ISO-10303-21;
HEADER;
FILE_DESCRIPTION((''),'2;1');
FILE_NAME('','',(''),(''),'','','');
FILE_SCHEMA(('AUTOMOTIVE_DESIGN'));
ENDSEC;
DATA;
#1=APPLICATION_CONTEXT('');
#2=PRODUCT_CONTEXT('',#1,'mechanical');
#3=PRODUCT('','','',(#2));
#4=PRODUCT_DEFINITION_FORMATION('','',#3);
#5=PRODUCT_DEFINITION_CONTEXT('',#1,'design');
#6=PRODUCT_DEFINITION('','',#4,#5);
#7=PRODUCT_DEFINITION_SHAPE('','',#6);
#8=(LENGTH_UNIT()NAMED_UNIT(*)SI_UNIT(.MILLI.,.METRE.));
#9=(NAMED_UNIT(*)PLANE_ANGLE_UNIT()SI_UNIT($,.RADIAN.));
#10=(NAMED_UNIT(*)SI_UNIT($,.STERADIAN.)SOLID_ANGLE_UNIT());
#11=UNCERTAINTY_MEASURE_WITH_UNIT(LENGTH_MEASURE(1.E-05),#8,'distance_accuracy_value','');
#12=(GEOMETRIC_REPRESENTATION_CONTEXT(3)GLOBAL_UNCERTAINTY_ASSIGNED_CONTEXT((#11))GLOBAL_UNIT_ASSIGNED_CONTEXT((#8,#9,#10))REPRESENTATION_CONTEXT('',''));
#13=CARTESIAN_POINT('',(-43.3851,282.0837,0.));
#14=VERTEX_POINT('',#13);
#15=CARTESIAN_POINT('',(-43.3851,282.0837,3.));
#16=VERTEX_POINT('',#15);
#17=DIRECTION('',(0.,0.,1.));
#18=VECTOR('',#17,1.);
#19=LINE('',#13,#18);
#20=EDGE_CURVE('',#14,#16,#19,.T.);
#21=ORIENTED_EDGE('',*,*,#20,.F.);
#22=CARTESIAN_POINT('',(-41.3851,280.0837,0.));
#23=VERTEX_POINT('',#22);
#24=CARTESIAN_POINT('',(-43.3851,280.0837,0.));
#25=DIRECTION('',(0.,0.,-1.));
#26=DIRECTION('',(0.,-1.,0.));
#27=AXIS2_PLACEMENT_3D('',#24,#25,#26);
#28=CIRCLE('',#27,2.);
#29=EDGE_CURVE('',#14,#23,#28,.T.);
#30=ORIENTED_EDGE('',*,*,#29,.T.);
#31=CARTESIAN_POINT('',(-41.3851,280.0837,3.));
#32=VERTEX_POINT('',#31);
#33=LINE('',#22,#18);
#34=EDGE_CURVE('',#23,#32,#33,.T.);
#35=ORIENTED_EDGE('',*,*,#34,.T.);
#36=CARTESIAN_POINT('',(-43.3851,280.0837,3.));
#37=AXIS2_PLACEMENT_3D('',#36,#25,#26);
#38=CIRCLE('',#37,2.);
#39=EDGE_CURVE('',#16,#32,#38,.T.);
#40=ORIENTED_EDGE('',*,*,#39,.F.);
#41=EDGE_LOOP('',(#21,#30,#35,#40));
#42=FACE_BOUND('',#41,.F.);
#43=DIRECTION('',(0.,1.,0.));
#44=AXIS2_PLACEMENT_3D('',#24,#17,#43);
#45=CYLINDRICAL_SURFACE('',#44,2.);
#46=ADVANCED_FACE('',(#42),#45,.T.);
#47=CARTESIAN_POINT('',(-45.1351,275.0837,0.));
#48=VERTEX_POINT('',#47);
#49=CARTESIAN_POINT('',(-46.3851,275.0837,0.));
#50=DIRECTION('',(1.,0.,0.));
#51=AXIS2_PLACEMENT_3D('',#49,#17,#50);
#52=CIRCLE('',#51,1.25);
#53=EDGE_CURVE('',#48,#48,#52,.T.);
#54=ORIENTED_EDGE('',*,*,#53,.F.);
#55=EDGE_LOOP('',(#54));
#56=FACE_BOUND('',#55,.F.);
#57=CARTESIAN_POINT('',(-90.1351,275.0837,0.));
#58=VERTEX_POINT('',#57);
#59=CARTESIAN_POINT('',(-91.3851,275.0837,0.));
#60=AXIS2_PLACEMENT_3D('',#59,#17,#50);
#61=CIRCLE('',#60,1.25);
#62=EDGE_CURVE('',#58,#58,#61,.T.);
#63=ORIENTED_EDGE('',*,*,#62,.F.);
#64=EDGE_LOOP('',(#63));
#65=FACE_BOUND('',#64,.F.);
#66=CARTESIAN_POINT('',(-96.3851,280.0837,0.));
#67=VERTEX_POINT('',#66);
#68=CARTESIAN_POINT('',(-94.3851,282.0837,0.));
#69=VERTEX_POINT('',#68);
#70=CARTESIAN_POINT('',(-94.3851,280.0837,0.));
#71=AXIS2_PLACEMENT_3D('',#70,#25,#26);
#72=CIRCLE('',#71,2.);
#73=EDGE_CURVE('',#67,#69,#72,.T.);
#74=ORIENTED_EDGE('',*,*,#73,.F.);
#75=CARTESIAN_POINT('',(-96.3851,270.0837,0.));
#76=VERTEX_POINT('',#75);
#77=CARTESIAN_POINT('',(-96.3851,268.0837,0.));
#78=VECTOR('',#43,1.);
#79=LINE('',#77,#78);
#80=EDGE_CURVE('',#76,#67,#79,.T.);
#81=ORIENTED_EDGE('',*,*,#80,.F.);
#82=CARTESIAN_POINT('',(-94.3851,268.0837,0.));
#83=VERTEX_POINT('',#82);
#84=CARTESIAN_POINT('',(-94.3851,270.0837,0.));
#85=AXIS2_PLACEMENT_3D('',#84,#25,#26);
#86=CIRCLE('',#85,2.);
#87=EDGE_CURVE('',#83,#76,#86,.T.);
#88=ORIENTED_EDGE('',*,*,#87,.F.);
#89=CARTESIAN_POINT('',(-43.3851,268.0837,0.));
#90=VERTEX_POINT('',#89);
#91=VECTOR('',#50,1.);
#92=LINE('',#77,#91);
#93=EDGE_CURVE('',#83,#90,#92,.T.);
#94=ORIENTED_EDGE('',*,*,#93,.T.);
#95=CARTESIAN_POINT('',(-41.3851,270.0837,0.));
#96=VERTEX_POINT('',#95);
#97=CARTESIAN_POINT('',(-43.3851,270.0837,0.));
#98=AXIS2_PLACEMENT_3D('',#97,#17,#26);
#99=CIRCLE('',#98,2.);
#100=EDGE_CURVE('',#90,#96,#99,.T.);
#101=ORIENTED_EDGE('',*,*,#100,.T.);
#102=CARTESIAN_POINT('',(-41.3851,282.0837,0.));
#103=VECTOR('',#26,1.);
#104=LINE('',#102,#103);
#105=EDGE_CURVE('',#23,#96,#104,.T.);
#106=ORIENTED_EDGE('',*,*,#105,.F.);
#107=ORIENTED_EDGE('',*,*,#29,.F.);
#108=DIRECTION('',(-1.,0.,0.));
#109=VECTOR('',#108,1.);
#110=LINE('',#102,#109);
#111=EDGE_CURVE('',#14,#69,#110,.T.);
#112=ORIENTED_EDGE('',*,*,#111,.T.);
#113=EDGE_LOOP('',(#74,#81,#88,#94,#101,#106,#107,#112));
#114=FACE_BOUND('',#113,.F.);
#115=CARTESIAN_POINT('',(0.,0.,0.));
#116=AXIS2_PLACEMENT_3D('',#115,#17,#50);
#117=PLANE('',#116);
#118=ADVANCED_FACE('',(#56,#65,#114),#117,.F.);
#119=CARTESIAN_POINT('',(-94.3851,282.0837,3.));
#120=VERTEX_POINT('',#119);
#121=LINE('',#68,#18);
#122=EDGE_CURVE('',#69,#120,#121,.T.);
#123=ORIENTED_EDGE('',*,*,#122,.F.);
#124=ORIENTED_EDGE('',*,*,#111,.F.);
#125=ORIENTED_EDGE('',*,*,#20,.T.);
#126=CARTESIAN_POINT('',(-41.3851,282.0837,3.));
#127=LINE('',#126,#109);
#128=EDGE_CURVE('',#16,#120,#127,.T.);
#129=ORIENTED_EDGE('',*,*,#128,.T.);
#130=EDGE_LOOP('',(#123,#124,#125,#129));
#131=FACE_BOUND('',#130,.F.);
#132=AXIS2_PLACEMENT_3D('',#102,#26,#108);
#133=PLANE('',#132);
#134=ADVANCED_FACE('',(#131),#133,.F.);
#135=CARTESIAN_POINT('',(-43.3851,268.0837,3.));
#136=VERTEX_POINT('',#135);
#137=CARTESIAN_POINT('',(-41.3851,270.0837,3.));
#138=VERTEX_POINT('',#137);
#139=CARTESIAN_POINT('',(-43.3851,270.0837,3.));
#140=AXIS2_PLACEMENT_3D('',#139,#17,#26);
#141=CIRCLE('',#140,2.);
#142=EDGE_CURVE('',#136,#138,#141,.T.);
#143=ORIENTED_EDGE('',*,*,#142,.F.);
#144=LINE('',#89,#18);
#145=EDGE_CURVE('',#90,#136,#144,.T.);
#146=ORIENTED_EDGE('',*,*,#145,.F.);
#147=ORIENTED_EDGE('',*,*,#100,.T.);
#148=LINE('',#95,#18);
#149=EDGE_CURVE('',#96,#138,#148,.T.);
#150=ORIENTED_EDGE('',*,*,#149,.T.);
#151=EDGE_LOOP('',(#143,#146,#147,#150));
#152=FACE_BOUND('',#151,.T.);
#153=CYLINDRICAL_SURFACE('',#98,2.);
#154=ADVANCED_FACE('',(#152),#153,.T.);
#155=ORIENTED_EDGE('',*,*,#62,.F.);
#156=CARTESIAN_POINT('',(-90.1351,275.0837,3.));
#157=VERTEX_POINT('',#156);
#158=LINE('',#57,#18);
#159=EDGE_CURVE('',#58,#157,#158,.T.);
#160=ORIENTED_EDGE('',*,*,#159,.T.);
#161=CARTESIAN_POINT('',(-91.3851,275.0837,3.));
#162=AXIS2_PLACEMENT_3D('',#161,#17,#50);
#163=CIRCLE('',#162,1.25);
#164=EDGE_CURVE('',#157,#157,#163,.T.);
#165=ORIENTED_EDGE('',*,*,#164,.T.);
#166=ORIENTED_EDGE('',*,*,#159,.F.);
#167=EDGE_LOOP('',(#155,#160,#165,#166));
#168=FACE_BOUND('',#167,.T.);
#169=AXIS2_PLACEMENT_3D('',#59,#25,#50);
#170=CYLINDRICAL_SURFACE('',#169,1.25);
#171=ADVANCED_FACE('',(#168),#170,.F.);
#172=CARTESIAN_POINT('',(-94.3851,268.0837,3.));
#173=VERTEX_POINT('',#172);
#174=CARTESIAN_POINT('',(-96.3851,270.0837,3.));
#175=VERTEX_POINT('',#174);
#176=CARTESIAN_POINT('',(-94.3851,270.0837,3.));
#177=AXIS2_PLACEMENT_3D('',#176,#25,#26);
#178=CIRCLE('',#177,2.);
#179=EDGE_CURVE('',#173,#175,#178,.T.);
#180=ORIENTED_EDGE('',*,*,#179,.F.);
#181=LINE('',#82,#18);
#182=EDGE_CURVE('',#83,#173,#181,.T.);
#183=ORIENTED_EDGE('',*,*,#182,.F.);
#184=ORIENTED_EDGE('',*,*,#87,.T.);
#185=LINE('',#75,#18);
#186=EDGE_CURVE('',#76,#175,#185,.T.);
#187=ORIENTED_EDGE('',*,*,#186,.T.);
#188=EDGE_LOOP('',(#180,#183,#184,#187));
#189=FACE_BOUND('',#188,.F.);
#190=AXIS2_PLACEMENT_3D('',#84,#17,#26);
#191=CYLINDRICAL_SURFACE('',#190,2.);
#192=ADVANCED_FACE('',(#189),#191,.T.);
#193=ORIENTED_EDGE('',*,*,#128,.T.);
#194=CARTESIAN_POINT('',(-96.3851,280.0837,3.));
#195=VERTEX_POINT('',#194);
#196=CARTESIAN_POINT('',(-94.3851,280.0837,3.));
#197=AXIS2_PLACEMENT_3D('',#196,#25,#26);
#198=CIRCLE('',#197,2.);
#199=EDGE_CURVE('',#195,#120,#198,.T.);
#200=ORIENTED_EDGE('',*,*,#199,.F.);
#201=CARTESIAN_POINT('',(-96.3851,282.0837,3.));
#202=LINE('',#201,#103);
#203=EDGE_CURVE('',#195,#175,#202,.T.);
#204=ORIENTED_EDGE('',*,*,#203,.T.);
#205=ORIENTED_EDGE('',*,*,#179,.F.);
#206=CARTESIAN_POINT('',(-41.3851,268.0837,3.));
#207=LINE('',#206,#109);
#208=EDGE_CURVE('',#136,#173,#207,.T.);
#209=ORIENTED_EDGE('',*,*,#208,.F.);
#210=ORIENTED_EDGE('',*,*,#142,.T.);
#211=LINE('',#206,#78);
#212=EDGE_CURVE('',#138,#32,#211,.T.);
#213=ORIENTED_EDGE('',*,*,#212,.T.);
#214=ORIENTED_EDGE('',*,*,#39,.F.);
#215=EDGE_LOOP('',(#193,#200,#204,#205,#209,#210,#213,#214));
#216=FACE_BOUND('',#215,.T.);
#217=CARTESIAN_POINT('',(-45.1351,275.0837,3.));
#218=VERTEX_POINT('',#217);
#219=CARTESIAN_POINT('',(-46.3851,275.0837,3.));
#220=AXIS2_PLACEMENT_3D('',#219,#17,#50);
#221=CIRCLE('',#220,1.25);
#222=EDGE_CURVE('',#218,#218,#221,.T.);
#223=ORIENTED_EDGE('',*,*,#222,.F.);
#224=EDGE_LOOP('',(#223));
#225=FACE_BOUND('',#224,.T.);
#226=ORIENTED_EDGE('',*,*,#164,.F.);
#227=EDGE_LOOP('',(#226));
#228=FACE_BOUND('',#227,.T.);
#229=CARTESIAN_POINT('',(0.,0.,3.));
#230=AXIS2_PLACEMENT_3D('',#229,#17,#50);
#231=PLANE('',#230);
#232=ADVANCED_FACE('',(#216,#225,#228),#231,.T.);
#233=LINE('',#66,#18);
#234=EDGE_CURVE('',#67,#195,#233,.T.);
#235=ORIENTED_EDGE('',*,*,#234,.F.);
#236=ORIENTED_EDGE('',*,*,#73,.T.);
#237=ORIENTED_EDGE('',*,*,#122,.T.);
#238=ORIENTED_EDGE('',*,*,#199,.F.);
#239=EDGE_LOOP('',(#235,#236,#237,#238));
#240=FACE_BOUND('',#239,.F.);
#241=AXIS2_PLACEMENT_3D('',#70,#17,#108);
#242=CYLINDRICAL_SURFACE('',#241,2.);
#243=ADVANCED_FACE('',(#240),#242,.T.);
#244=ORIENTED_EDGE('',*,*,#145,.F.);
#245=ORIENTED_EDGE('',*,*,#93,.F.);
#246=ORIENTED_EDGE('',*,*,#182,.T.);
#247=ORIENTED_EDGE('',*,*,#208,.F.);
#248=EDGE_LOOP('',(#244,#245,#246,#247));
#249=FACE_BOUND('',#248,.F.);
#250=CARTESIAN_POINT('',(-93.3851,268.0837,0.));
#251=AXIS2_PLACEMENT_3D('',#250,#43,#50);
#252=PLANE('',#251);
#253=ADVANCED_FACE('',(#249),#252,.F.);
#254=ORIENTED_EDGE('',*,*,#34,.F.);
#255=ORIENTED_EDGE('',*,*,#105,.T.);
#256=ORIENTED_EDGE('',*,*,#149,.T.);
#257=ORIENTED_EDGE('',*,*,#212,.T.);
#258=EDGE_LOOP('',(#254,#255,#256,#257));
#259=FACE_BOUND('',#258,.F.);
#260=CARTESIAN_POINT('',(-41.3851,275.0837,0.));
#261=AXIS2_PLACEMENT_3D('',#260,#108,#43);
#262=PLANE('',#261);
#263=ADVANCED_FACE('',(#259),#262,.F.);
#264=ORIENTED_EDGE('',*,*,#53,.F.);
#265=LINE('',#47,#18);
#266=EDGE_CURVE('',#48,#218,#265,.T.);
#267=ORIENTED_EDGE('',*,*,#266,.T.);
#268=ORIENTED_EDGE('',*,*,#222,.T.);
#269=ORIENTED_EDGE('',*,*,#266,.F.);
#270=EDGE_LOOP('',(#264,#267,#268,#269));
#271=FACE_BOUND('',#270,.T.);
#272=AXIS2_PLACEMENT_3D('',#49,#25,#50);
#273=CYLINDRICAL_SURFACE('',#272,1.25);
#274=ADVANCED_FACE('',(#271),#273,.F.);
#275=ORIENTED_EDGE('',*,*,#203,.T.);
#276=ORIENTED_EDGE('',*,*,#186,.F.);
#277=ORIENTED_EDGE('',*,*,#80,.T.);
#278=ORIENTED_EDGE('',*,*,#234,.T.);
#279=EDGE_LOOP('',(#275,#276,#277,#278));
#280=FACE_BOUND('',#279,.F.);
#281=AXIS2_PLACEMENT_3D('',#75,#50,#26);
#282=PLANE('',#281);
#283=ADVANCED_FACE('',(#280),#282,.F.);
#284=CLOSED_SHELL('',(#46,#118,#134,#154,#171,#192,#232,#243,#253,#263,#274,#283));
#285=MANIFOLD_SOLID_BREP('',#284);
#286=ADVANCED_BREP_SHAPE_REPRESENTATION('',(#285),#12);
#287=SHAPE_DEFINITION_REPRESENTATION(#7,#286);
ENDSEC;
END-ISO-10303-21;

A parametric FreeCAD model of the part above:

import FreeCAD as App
import Part
import Sketcher

V = App.Vector


def edges_at(feature, points):
    """Names of the edges that pass closest to the given points."""
    edges = feature.Shape.Edges
    near = lambda p: min(range(len(edges)), key=lambda i: edges[i].distToShape(Part.Vertex(*p))[0])
    return sorted({f"Edge{near(p) + 1}" for p in points})


def add_polygon(sketch, points):
    """Adds a closed chain of lines whose ends are joined by coincident constraints."""
    first, n = sketch.GeometryCount, len(points)
    for a, b in zip(points, points[1:] + points[:1]):
        sketch.addGeometry(Part.LineSegment(App.Vector(*a, 0), App.Vector(*b, 0)), False)
    for i in range(n):
        sketch.addConstraint(Sketcher.Constraint("Coincident", first + i, 2, first + (i + 1) % n, 1))

doc = App.newDocument("Part")
params = doc.addObject("Spreadsheet::Sheet", "Params")
for row, (alias, value) in enumerate([
    ("sketch1_height", "14 mm"),
    ("sketch1_diameter", "2.5 mm"),
    ("sketch1_width", "55 mm"),
    ("pad1_length", "3 mm"),
    ("fillet_radius", "2 mm"),
], start=1):
    params.set(f"A{row}", alias)
    params.set(f"B{row}", "=" + value)
    params.setAlias(f"B{row}", alias)

body = doc.addObject("PartDesign::Body", "Body")

sketch1 = body.newObject("Sketcher::SketchObject", "Sketch")
sketch1.AttachmentSupport = (doc.getObject("XY_Plane"), [""])
sketch1.MapMode = "FlatFace"
add_polygon(sketch1, [(-41.4, 268.1), (-41.4, 282.1), (-96.4, 282.1), (-96.4, 268.1)])
sketch1.addGeometry(Part.Circle(V(-91.4, 275.1, 0), V(0, 0, 1), 1.2), False)
sketch1.addGeometry(Part.Circle(V(-46.4, 275.1, 0), V(0, 0, 1), 1.2), False)
sketch1.addConstraint(Sketcher.Constraint("Vertical", 0))
sketch1.addConstraint(Sketcher.Constraint("Horizontal", 1))
sketch1.addConstraint(Sketcher.Constraint("Vertical", 2))
sketch1.addConstraint(Sketcher.Constraint("Horizontal", 3))
sketch1.addConstraint(Sketcher.Constraint("Equal", 4, 5))
sketch1.addConstraint(Sketcher.Constraint("Horizontal", 4, 3, 5, 3))
sketch1.addConstraint(Sketcher.Constraint("DistanceY", 0, 1, 0, 2, 14.0))
sketch1.addConstraint(Sketcher.Constraint("DistanceY", 5, 3, 0, 2, 7.0))
sketch1.addConstraint(Sketcher.Constraint("Diameter", 4, 2.5))
sketch1.addConstraint(Sketcher.Constraint("DistanceX", 1, 2, 1, 1, 55.0))
sketch1.addConstraint(Sketcher.Constraint("DistanceX", 4, 3, 5, 3, 45.0))
sketch1.addConstraint(Sketcher.Constraint("DistanceX", 5, 3, 0, 2, 5.0))
sketch1.addConstraint(Sketcher.Constraint("DistanceX", 4, 3, -1, 1, 91.385))
sketch1.addConstraint(Sketcher.Constraint("DistanceY", -1, 1, 4, 3, 275.0837))
sketch1.setExpression("Constraints[10]", "Params.sketch1_height")
sketch1.setExpression("Constraints[12]", "Params.sketch1_diameter")
sketch1.setExpression("Constraints[13]", "Params.sketch1_width")
pad1 = body.newObject("PartDesign::Pad", "Pad")
pad1.Profile = sketch1
pad1.setExpression("Length", "Params.pad1_length")
doc.recompute()

fillet = body.newObject("PartDesign::Fillet", "Fillet")
fillet.Base = (pad1, edges_at(pad1, [
    (-96.385, 282.084, 1.5),
    (-96.385, 268.084, 1.5),
    (-41.385, 268.084, 1.5),
    (-41.385, 282.084, 1.5),
]))
fillet.setExpression("Radius", "Params.fillet_radius")

doc.recompute()
